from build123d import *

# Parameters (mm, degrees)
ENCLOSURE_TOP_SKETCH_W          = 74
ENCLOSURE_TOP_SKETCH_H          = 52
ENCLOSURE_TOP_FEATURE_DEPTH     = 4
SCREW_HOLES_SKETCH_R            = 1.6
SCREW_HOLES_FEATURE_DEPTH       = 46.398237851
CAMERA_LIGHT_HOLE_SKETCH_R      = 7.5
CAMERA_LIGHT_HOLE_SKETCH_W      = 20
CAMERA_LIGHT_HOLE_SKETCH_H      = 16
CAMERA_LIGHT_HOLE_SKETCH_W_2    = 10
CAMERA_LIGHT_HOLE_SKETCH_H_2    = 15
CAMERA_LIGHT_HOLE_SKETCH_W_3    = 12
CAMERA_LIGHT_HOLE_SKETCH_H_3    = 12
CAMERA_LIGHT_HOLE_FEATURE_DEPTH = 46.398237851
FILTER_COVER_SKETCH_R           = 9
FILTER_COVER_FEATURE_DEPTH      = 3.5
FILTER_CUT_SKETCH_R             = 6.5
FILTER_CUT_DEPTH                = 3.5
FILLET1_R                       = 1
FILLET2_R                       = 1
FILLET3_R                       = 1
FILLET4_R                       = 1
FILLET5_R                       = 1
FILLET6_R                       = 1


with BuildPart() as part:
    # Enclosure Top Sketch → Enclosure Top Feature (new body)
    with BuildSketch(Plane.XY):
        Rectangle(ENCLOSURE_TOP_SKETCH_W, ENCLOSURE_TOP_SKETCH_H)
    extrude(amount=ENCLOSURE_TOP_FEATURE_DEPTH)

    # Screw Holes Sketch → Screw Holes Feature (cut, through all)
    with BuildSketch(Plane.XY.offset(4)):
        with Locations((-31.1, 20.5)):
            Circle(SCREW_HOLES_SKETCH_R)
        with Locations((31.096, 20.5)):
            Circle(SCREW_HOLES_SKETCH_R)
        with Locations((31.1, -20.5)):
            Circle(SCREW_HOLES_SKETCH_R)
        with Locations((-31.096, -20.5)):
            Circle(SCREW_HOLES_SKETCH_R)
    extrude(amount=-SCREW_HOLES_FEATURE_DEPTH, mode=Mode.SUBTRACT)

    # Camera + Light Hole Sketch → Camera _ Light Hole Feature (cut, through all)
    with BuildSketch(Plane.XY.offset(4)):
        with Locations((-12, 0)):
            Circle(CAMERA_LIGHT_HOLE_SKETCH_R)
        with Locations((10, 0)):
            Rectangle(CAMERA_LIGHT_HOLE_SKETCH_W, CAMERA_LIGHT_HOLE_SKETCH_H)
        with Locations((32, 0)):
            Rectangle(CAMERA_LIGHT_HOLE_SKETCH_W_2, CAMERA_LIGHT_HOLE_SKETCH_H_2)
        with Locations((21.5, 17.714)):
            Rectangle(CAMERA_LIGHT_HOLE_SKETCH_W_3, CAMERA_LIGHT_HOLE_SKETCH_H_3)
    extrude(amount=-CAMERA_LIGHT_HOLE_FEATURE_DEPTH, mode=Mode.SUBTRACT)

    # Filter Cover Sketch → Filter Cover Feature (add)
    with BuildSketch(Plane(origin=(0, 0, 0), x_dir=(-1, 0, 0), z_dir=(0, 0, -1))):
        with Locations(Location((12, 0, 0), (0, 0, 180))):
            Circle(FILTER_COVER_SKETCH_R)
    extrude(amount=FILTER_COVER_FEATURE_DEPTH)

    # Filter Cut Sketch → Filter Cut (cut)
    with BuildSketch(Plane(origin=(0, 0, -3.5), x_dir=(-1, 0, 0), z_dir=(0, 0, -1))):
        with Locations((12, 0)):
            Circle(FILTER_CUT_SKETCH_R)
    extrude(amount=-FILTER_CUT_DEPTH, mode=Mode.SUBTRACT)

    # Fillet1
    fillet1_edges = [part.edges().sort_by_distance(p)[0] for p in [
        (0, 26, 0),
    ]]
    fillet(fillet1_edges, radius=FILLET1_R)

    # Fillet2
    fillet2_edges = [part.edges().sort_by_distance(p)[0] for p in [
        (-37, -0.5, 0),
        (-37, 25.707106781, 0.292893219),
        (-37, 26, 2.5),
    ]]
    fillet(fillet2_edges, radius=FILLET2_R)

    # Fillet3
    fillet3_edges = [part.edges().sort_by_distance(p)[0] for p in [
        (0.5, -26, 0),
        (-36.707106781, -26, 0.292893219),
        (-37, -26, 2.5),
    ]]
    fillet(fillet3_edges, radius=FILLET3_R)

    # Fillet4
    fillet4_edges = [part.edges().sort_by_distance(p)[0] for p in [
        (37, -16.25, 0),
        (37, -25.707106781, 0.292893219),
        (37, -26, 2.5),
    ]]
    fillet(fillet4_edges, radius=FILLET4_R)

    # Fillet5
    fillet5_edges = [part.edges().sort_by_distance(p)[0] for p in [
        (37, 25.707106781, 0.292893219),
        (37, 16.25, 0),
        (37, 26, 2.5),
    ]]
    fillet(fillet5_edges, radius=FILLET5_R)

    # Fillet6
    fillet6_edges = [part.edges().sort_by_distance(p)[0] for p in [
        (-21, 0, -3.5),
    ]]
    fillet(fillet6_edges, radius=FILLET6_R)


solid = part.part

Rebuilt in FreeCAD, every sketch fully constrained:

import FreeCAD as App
import Part
import Sketcher
from FreeCAD import Vector


def edges_at(feature, points):
    """Names of the edges that pass closest to the given points."""
    edges = feature.Shape.Edges
    near = lambda p: min(range(len(edges)), key=lambda i: edges[i].distToShape(Part.Vertex(*p))[0])
    return sorted({f"Edge{near(p) + 1}" for p in points})

doc = App.newDocument("Part")
body = doc.addObject("PartDesign::Body", "Body")

# Sketch on XY plane
sketch1 = body.newObject("Sketcher::SketchObject", "Sketch")
sketch1.AttachmentSupport = (doc.getObject("XY_Plane"), [""])
sketch1.MapMode = "FlatFace"
sketch1.addGeometry([
    Part.LineSegment(Vector(-37, 26, 0), Vector(-37, -26, 0)),
    Part.LineSegment(Vector(-37, -26, 0), Vector(37, -26, 0)),
    Part.LineSegment(Vector(37, -26, 0), Vector(37, 26, 0)),
    Part.LineSegment(Vector(37, 26, 0), Vector(-37, 26, 0)),
], False)
sketch1.addConstraint([
    Sketcher.Constraint("Coincident", 0, 2, 1, 1),
    Sketcher.Constraint("Coincident", 1, 2, 2, 1),
    Sketcher.Constraint("Coincident", 2, 2, 3, 1),
    Sketcher.Constraint("Coincident", 3, 2, 0, 1),
    Sketcher.Constraint("Vertical", 0),
    Sketcher.Constraint("Horizontal", 1),
    Sketcher.Constraint("Vertical", 2),
    Sketcher.Constraint("Horizontal", 3),
    Sketcher.Constraint("Symmetric", 0, 2, 2, 2, -1, 1),
    Sketcher.Constraint("DistanceX", 1, 1, 1, 2, 74.0),
    Sketcher.Constraint("DistanceY", 0, 2, 0, 1, 52.0),
])
pad1 = body.newObject("PartDesign::Pad", "Pad")
pad1.Profile = sketch1
pad1.Length = 4

# Sketch on XY plane
sketch2 = body.newObject("Sketcher::SketchObject", "Sketch001")
sketch2.AttachmentSupport = (doc.getObject("XY_Plane"), [""])
sketch2.MapMode = "FlatFace"
sketch2.AttachmentOffset = App.Placement(Vector(0, 0, 4), App.Rotation())
sketch2.addGeometry([
    Part.Circle(Vector(-31.1, 20.5, 0), Vector(0, 0, 1), 1.6),
    Part.Circle(Vector(31.1, 20.5, 0), Vector(0, 0, 1), 1.6),
    Part.Circle(Vector(31.1, -20.5, 0), Vector(0, 0, 1), 1.6),
    Part.Circle(Vector(-31.1, -20.5, 0), Vector(0, 0, 1), 1.6),
], False)
sketch2.addConstraint([
    Sketcher.Constraint("Equal", 0, 1),
    Sketcher.Constraint("Equal", 1, 2),
    Sketcher.Constraint("Equal", 2, 3),
    Sketcher.Constraint("Symmetric", 0, 3, 2, 3, -1, 1),
    Sketcher.Constraint("Symmetric", 1, 3, 3, 3, -1, 1),
    Sketcher.Constraint("Horizontal", 0, 3, 1, 3),
    Sketcher.Constraint("Diameter", 0, 3.2),
    Sketcher.Constraint("DistanceY", 2, 3, 1, 3, 41.0),
    Sketcher.Constraint("DistanceX", 0, 3, -1, 1, 31.1),
    Sketcher.Constraint("DistanceX", -1, 1, 1, 3, 31.096),
])
pocket1 = body.newObject("PartDesign::Pocket", "Pocket")
pocket1.Profile = sketch2
pocket1.Type = "ThroughAll"

# Sketch on XY plane
sketch3 = body.newObject("Sketcher::SketchObject", "Sketch002")
sketch3.AttachmentSupport = (doc.getObject("XY_Plane"), [""])
sketch3.MapMode = "FlatFace"
sketch3.AttachmentOffset = App.Placement(Vector(0, 0, 4), App.Rotation())
sketch3.addGeometry([
    Part.Circle(Vector(-12, 0, 0), Vector(0, 0, 1), 8),  # 0
    Part.LineSegment(Vector(0, 8, 0), Vector(0, -8, 0)),  # 1
    Part.LineSegment(Vector(0, -8, 0), Vector(20, -8, 0)),  # 2
    Part.LineSegment(Vector(20, -8, 0), Vector(20, 8, 0)),  # 3
    Part.LineSegment(Vector(20, 8, 0), Vector(0, 8, 0)),  # 4
    Part.LineSegment(Vector(27, 8, 0), Vector(27, -8, 0)),  # 5
    Part.LineSegment(Vector(27, -8, 0), Vector(37, -8, 0)),  # 6
    Part.LineSegment(Vector(37, -8, 0), Vector(37, 8, 0)),  # 7
    Part.LineSegment(Vector(37, 8, 0), Vector(27, 8, 0)),  # 8
    Part.LineSegment(Vector(16, 24, 0), Vector(16, 12, 0)),  # 9
    Part.LineSegment(Vector(16, 12, 0), Vector(28, 12, 0)),  # 10
    Part.LineSegment(Vector(28, 12, 0), Vector(28, 24, 0)),  # 11
    Part.LineSegment(Vector(28, 24, 0), Vector(16, 24, 0)),  # 12
], False)
sketch3.addConstraint([
    Sketcher.Constraint("Coincident", 1, 2, 2, 1),
    Sketcher.Constraint("Coincident", 2, 2, 3, 1),
    Sketcher.Constraint("Coincident", 3, 2, 4, 1),
    Sketcher.Constraint("Coincident", 4, 2, 1, 1),
    Sketcher.Constraint("Coincident", 5, 2, 6, 1),
    Sketcher.Constraint("Coincident", 6, 2, 7, 1),
    Sketcher.Constraint("Coincident", 7, 2, 8, 1),
    Sketcher.Constraint("Coincident", 8, 2, 5, 1),
    Sketcher.Constraint("Coincident", 9, 2, 10, 1),
    Sketcher.Constraint("Coincident", 10, 2, 11, 1),
    Sketcher.Constraint("Coincident", 11, 2, 12, 1),
    Sketcher.Constraint("Coincident", 12, 2, 9, 1),
    Sketcher.Constraint("Vertical", 1),
    Sketcher.Constraint("Horizontal", 2),
    Sketcher.Constraint("Vertical", 3),
    Sketcher.Constraint("Horizontal", 4),
    Sketcher.Constraint("Vertical", 5),
    Sketcher.Constraint("Horizontal", 6),
    Sketcher.Constraint("Vertical", 7),
    Sketcher.Constraint("Horizontal", 8),
    Sketcher.Constraint("Vertical", 9),
    Sketcher.Constraint("Horizontal", 10),
    Sketcher.Constraint("Vertical", 11),
    Sketcher.Constraint("Horizontal", 12),
    Sketcher.Constraint("Symmetric", 1, 2, 4, 2, -1, 1),
    Sketcher.Constraint("PointOnObject", 0, 3, -1),
    Sketcher.Constraint("Equal", 12, 9),
    Sketcher.Constraint("Diameter", 0, 15.0),
    Sketcher.Constraint("DistanceX", 2, 1, 2, 2, 20.0),
    Sketcher.Constraint("DistanceX", 6, 1, 6, 2, 10.0),
    Sketcher.Constraint("DistanceX", 10, 1, 10, 2, 12.0),
    Sketcher.Constraint("DistanceY", 1, 2, 1, 1, 16.0),
    Sketcher.Constraint("DistanceY", 5, 2, 5, 1, 15.0),
    Sketcher.Constraint("DistanceX", 0, 3, -1, 1, 12.0),
    Sketcher.Constraint("DistanceX", -1, 1, 5, 2, 27.0),
    Sketcher.Constraint("DistanceY", 5, 2, -1, 1, 7.5),
    Sketcher.Constraint("DistanceX", -1, 1, 9, 2, 15.5),
    Sketcher.Constraint("DistanceY", -1, 1, 9, 2, 11.714),
])
pocket2 = body.newObject("PartDesign::Pocket", "Pocket001")
pocket2.Profile = sketch3
pocket2.Type = "ThroughAll"

# Sketch on XY plane
sketch4 = body.newObject("Sketcher::SketchObject", "Sketch003")
sketch4.AttachmentSupport = (doc.getObject("XY_Plane"), [""])
sketch4.MapMode = "FlatFace"
sketch4.addGeometry(Part.Circle(Vector(-12, 0, 0), Vector(0, 0, 1), 9), False)
sketch4.addConstraint([
    Sketcher.Constraint("PointOnObject", 0, 3, -1),
    Sketcher.Constraint("Diameter", 0, 18.0),
    Sketcher.Constraint("DistanceX", 0, 3, -1, 1, 12.0),
])
pad2 = body.newObject("PartDesign::Pad", "Pad001")
pad2.Profile = sketch4
pad2.Length = 3.5
pad2.Reversed = True

# Sketch on XY plane
sketch5 = body.newObject("Sketcher::SketchObject", "Sketch004")
sketch5.AttachmentSupport = (doc.getObject("XY_Plane"), [""])
sketch5.MapMode = "FlatFace"
sketch5.AttachmentOffset = App.Placement(Vector(0, 0, -3.5), App.Rotation())
sketch5.addGeometry(Part.Circle(Vector(-12, 0, 0), Vector(0, 0, 1), 6), False)
sketch5.addConstraint([
    Sketcher.Constraint("PointOnObject", 0, 3, -1),
    Sketcher.Constraint("Diameter", 0, 13.0),
    Sketcher.Constraint("DistanceX", 0, 3, -1, 1, 12.0),
])
pocket3 = body.newObject("PartDesign::Pocket", "Pocket002")
pocket3.Profile = sketch5
pocket3.Length = 3.5
pocket3.Reversed = True
doc.recompute()

fillet = body.newObject("PartDesign::Fillet", "Fillet")
fillet.Base = (pocket3, edges_at(pocket3, [(0, 26, 0)]))
fillet.Radius = 1
doc.recompute()

fillet2 = body.newObject("PartDesign::Fillet", "Fillet001")
fillet2.Base = (fillet, edges_at(fillet, [(-37, -0.5, 0), (-37, 25.707, 0.293), (-37, 26, 2.5)]))
fillet2.Radius = 1
doc.recompute()

fillet3 = body.newObject("PartDesign::Fillet", "Fillet002")
fillet3.Base = (fillet2, edges_at(fillet2, [(0.5, -26, 0), (-36.707, -26, 0.293), (-37, -26, 2.5)]))
fillet3.Radius = 1
doc.recompute()

fillet4 = body.newObject("PartDesign::Fillet", "Fillet003")
fillet4.Base = (fillet3, edges_at(fillet3, [(37, -16.25, 0), (37, -25.707, 0.293), (37, -26, 2.5)]))
fillet4.Radius = 1
doc.recompute()

fillet5 = body.newObject("PartDesign::Fillet", "Fillet004")
fillet5.Base = (fillet4, edges_at(fillet4, [(37, 25.707, 0.293), (37, 16.25, 0), (37, 26, 2.5)]))
fillet5.Radius = 1
doc.recompute()

fillet6 = body.newObject("PartDesign::Fillet", "Fillet005")
fillet6.Base = (fillet5, edges_at(fillet5, [(-21, 0, -3.5)]))
fillet6.Radius = 1

doc.recompute()
